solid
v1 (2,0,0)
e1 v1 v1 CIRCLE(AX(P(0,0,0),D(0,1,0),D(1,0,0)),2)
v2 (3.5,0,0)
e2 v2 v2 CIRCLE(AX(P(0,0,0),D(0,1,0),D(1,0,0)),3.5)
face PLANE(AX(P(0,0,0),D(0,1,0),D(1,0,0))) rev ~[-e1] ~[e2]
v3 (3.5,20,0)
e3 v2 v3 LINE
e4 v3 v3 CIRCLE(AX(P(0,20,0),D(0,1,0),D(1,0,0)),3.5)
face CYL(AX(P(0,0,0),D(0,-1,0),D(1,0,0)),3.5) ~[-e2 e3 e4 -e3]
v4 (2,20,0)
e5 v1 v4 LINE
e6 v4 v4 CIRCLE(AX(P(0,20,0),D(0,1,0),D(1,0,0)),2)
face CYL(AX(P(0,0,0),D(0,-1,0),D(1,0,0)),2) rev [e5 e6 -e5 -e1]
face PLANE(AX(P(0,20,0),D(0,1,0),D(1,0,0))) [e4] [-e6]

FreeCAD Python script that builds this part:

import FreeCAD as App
import Part
import Sketcher
Q = App.Units.Quantity

doc = App.newDocument("Part")
params = doc.addObject("Spreadsheet::Sheet", "Params")
for row, (alias, value) in enumerate([
    ("sketch1_diameter", "7 mm"),
    ("sketch1_diameter2", "4 mm"),
    ("pad1_length", "20 mm"),
], start=1):
    params.set(f"A{row}", alias)
    params.set(f"B{row}", "=" + value)
    params.setAlias(f"B{row}", alias)

body = doc.addObject("PartDesign::Body", "Body")

sketch1 = doc.addObject("Sketcher::SketchObject", "Sketch")
body.addObject(sketch1)
sketch1.AttachmentSupport = (doc.XZ_Plane, [""])
sketch1.MapMode = "FlatFace"
sketch1.addGeometry([
    Part.Circle(App.Vector(0, 0, 0), App.Vector(0, 0, 1), 3.5),
    Part.Circle(App.Vector(0, 0, 0), App.Vector(0, 0, 1), 2),
], False)
sketch1.addConstraint([
    Sketcher.Constraint("Coincident", 0, 3, -1, 1),
    Sketcher.Constraint("Coincident", 1, 3, -1, 1),
    Sketcher.Constraint("Diameter", 0, Q("7 mm")),
    Sketcher.Constraint("Diameter", 1, Q("4 mm")),
])
sketch1.setExpression("Constraints[2]", "Params.sketch1_diameter")
sketch1.setExpression("Constraints[3]", "Params.sketch1_diameter2")
pad1 = doc.addObject("PartDesign::Pad", "Pad")
body.addObject(pad1)
pad1.Profile = sketch1
pad1.setExpression("Length", "Params.pad1_length")
pad1.Reversed = True

doc.recompute()
